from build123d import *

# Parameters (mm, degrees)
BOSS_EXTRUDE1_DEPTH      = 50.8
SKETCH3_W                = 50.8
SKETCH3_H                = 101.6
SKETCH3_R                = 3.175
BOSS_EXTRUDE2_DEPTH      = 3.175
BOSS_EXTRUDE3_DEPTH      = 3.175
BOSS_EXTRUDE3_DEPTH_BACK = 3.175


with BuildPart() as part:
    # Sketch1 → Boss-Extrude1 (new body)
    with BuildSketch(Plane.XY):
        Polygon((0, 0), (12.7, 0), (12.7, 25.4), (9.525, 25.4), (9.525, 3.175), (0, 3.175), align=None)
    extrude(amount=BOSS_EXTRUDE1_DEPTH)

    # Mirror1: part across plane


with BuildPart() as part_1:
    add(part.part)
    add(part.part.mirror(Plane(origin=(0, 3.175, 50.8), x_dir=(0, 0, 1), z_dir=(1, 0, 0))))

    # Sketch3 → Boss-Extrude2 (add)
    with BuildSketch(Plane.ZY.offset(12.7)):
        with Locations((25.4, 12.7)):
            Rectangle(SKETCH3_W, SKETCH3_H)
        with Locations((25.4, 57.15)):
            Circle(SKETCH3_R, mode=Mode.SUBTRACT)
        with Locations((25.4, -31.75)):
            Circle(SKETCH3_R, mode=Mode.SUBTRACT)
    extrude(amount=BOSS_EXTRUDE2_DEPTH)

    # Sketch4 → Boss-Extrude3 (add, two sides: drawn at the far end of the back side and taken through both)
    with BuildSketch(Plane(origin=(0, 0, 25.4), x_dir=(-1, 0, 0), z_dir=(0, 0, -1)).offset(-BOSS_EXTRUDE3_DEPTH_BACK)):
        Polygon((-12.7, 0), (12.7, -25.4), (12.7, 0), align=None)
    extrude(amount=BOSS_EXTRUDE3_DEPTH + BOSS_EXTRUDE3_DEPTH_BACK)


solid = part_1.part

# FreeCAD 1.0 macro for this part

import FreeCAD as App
import Part
import Sketcher
from FreeCAD import Vector
Q = App.Units.Quantity


def add_polygon(sketch, points):
    """Adds a closed chain of lines whose ends are joined by coincident constraints."""
    first, n = sketch.GeometryCount, len(points)
    for a, b in zip(points, points[1:] + points[:1]):
        sketch.addGeometry(Part.LineSegment(App.Vector(*a, 0), App.Vector(*b, 0)), False)
    for i in range(n):
        sketch.addConstraint(Sketcher.Constraint("Coincident", first + i, 2, first + (i + 1) % n, 1))

doc = App.newDocument("Part")
body = doc.addObject("PartDesign::Body", "Body")

# Sketch on XY plane
sketch1 = body.newObject("Sketcher::SketchObject", "Sketch")
sketch1.AttachmentSupport = (doc.getObject("XY_Plane"), [""])
sketch1.MapMode = "FlatFace"
add_polygon(sketch1, [(0, 0), (12.7, 0), (12.7, 25.4), (9.525, 25.4), (9.525, 3.175), (0, 3.175)])  # lines 0-5
sketch1.addConstraint(Sketcher.Constraint("Horizontal", 0))
sketch1.addConstraint(Sketcher.Constraint("Vertical", 1))
sketch1.addConstraint(Sketcher.Constraint("Horizontal", 2))
sketch1.addConstraint(Sketcher.Constraint("Vertical", 3))
sketch1.addConstraint(Sketcher.Constraint("Horizontal", 4))
sketch1.addConstraint(Sketcher.Constraint("Vertical", 5))
sketch1.addConstraint(Sketcher.Constraint("Coincident", 5, 2, -1, 1))
sketch1.addConstraint(Sketcher.Constraint("Equal", 2, 5))
sketch1.addConstraint(Sketcher.Constraint("DistanceY", 1, 1, 1, 2, Q("1 in")))
sketch1.addConstraint(Sketcher.Constraint("DistanceX", 0, 1, 0, 2, Q("0.5 in")))
sketch1.addConstraint(Sketcher.Constraint("DistanceX", 2, 2, 2, 1, Q("0.125 in")))
pad1 = body.newObject("PartDesign::Pad", "Pad")
pad1.Profile = sketch1
pad1.Length = Q("2 in")
body2 = doc.addObject("PartDesign::Body", "Body001")
doc.recompute()

body2.BaseFeature = body
doc.recompute()

mirroring = doc.addObject("Part::Mirroring", "Mirroring")
mirroring.Source = body
mirroring.Base = Vector(0, 3.175, 50.8)
mirroring.Normal = Vector(1, 0, 0)
body3 = doc.addObject("PartDesign::Body", "Body002")
body3.BaseFeature = mirroring
boolean = body2.newObject("PartDesign::Boolean", "Boolean")
boolean.Type = "Fuse"
boolean.addObjects([body3])
doc.recompute()

# Sketch on YZ plane
sketch2 = body2.newObject("Sketcher::SketchObject", "Sketch001")
sketch2.AttachmentSupport = (doc.getObject("YZ_Plane001"), [""])
sketch2.MapMode = "FlatFace"
sketch2.AttachmentOffset = App.Placement(Vector(0, 0, -0.5 * 25.4), App.Rotation())
add_polygon(sketch2, [(63.5, 0), (-38.1, 0), (-38.1, 50.8), (63.5, 50.8)])  # lines 0-3
sketch2.addGeometry(Part.Circle(Vector(-31.75, 25.4, 0), Vector(0, 0, 1), 3.175), False)  # 4
sketch2.addGeometry(Part.Circle(Vector(57.15, 25.4, 0), Vector(0, 0, 1), 3.175), False)  # 5
sketch2.addConstraint(Sketcher.Constraint("Horizontal", 0))
sketch2.addConstraint(Sketcher.Constraint("Vertical", 1))
sketch2.addConstraint(Sketcher.Constraint("Horizontal", 2))
sketch2.addConstraint(Sketcher.Constraint("Vertical", 3))
sketch2.addConstraint(Sketcher.Constraint("Equal", 4, 5))
sketch2.addConstraint(Sketcher.Constraint("PointOnObject", 0, 2, -1))
sketch2.addConstraint(Sketcher.Constraint("Horizontal", 4, 3, 5, 3))
sketch2.addConstraint(Sketcher.Constraint("Diameter", 4, Q("0.25 in")))
sketch2.addConstraint(Sketcher.Constraint("DistanceX", 0, 2, 0, 1, Q("4 in")))
sketch2.addConstraint(Sketcher.Constraint("DistanceY", 1, 1, 1, 2, Q("2 in")))
sketch2.addConstraint(Sketcher.Constraint("DistanceY", -1, 1, 4, 3, Q("1 in")))
sketch2.addConstraint(Sketcher.Constraint("DistanceX", 0, 2, -1, 1, Q("1.5 in")))
sketch2.addConstraint(Sketcher.Constraint("DistanceX", 4, 3, 5, 3, Q("3.5 in")))
sketch2.addConstraint(Sketcher.Constraint("DistanceX", 4, 3, -1, 1, Q("1.25 in")))
pad2 = body2.newObject("PartDesign::Pad", "Pad001")
pad2.Profile = sketch2
pad2.Length = Q("0.125 in")
pad2.Reversed = True

# Sketch on XY plane
sketch3 = body2.newObject("Sketcher::SketchObject", "Sketch002")
sketch3.AttachmentSupport = (doc.getObject("XY_Plane001"), [""])
sketch3.MapMode = "FlatFace"
sketch3.AttachmentOffset = App.Placement(Vector(0, 0, 1 * 25.4), App.Rotation())
add_polygon(sketch3, [(12.7, 0), (-12.7, -25.4), (-12.7, 0)])  # lines 0-2
sketch3.addConstraint(Sketcher.Constraint("Vertical", 1))
sketch3.addConstraint(Sketcher.Constraint("Horizontal", 2))
sketch3.addConstraint(Sketcher.Constraint("Symmetric", 1, 2, 2, 2, -1, 1))
sketch3.addConstraint(Sketcher.Constraint("Equal", 2, 1))
sketch3.addConstraint(Sketcher.Constraint("DistanceX", 2, 1, 2, 2, Q("1 in")))
pad3 = body2.newObject("PartDesign::Pad", "Pad002")
pad3.Profile = sketch3
pad3.Type = "TwoLengths"
pad3.Length = Q("0.125 in")
pad3.Length2 = Q("0.125 in")
pad3.Reversed = True
mirroring.Visibility = False

doc.recompute()
